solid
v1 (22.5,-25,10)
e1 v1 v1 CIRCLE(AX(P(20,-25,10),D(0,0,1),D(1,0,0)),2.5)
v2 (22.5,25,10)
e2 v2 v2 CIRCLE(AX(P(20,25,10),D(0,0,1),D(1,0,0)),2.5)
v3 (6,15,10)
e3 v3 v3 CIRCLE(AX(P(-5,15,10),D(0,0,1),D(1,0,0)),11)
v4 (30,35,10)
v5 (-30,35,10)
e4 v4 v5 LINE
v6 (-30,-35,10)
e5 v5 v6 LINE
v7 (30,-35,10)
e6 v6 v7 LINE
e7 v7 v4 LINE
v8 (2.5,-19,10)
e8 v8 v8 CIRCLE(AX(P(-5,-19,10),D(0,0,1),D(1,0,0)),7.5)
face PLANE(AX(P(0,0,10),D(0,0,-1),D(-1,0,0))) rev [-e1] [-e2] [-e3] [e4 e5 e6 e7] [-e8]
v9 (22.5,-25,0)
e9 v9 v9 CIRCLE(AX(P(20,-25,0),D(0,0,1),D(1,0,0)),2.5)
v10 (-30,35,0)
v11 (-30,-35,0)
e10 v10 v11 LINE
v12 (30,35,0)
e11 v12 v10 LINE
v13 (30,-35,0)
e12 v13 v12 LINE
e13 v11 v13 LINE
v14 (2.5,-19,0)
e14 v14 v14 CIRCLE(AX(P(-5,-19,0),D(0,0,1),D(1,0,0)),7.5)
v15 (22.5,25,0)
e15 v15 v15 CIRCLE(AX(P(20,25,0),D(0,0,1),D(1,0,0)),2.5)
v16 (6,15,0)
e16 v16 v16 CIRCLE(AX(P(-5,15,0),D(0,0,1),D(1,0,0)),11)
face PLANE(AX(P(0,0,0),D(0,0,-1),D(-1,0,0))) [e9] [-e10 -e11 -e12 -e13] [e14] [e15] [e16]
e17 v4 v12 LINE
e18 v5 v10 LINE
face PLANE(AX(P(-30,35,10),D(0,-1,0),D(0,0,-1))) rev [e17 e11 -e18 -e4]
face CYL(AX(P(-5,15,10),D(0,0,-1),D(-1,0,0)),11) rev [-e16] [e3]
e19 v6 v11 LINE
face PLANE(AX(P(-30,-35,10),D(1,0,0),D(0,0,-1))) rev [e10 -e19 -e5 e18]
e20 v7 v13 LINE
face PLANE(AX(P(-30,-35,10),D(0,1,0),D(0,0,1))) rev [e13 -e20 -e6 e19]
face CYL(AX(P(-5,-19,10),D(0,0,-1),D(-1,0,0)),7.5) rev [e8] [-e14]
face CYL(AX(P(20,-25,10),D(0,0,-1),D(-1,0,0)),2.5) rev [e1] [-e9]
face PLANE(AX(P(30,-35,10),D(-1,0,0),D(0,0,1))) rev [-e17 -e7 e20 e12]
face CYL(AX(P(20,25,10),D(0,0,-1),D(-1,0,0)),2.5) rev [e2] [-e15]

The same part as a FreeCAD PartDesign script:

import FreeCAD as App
import Part
import Sketcher


def add_polygon(sketch, points):
    """Adds a closed chain of lines whose ends are joined by coincident constraints."""
    first, n = sketch.GeometryCount, len(points)
    for a, b in zip(points, points[1:] + points[:1]):
        sketch.addGeometry(Part.LineSegment(App.Vector(*a, 0), App.Vector(*b, 0)), False)
    for i in range(n):
        sketch.addConstraint(Sketcher.Constraint("Coincident", first + i, 2, first + (i + 1) % n, 1))

doc = App.newDocument("Part")
body = doc.addObject("PartDesign::Body", "Body")

# Sketch on XY plane
sketch1 = body.newObject("Sketcher::SketchObject", "Sketch")
sketch1.AttachmentSupport = (doc.getObject("XY_Plane"), [""])
sketch1.MapMode = "FlatFace"
add_polygon(sketch1, [(-30, 35), (-30, -35), (30, -35), (30, 35)])  # lines 0-3
sketch1.addGeometry(Part.Circle(App.Vector(-5, -19, 0), App.Vector(0, 0, 1), 7.5), False)  # 4
sketch1.addGeometry(Part.Circle(App.Vector(20, -25, 0), App.Vector(0, 0, 1), 2.5), False)  # 5
sketch1.addGeometry(Part.Circle(App.Vector(-5, 15, 0), App.Vector(0, 0, 1), 11), False)  # 6
sketch1.addGeometry(Part.Circle(App.Vector(20, 25, 0), App.Vector(0, 0, 1), 2.5), False)  # 7
sketch1.addConstraint([
    Sketcher.Constraint("Vertical", 0),
    Sketcher.Constraint("Horizontal", 1),
    Sketcher.Constraint("Vertical", 2),
    Sketcher.Constraint("Horizontal", 3),
    Sketcher.Constraint("Equal", 5, 7),
    Sketcher.Constraint("Symmetric", 0, 2, 2, 2, -1, 1),
    Sketcher.Constraint("Symmetric", 5, 3, 7, 3, -1),
    Sketcher.Constraint("Vertical", 4, 3, 6, 3),
    Sketcher.Constraint("Diameter", 4, 15.0),
    Sketcher.Constraint("Diameter", 5, 5.0),
    Sketcher.Constraint("Diameter", 6, 22.0),
    Sketcher.Constraint("DistanceX", 1, 1, 1, 2, 60.0),
    Sketcher.Constraint("DistanceY", 0, 2, 0, 1, 70.0),
    Sketcher.Constraint("DistanceX", 4, 3, -1, 1, 5.0),
    Sketcher.Constraint("DistanceY", 4, 3, -1, 1, 19.0),
    Sketcher.Constraint("DistanceX", -1, 1, 5, 3, 20.0),
    Sketcher.Constraint("DistanceY", 5, 3, -1, 1, 25.0),
    Sketcher.Constraint("DistanceY", -1, 1, 6, 3, 15.0),
])
pad1 = body.newObject("PartDesign::Pad", "Pad")
pad1.Profile = sketch1
pad1.Length = 10

doc.recompute()
